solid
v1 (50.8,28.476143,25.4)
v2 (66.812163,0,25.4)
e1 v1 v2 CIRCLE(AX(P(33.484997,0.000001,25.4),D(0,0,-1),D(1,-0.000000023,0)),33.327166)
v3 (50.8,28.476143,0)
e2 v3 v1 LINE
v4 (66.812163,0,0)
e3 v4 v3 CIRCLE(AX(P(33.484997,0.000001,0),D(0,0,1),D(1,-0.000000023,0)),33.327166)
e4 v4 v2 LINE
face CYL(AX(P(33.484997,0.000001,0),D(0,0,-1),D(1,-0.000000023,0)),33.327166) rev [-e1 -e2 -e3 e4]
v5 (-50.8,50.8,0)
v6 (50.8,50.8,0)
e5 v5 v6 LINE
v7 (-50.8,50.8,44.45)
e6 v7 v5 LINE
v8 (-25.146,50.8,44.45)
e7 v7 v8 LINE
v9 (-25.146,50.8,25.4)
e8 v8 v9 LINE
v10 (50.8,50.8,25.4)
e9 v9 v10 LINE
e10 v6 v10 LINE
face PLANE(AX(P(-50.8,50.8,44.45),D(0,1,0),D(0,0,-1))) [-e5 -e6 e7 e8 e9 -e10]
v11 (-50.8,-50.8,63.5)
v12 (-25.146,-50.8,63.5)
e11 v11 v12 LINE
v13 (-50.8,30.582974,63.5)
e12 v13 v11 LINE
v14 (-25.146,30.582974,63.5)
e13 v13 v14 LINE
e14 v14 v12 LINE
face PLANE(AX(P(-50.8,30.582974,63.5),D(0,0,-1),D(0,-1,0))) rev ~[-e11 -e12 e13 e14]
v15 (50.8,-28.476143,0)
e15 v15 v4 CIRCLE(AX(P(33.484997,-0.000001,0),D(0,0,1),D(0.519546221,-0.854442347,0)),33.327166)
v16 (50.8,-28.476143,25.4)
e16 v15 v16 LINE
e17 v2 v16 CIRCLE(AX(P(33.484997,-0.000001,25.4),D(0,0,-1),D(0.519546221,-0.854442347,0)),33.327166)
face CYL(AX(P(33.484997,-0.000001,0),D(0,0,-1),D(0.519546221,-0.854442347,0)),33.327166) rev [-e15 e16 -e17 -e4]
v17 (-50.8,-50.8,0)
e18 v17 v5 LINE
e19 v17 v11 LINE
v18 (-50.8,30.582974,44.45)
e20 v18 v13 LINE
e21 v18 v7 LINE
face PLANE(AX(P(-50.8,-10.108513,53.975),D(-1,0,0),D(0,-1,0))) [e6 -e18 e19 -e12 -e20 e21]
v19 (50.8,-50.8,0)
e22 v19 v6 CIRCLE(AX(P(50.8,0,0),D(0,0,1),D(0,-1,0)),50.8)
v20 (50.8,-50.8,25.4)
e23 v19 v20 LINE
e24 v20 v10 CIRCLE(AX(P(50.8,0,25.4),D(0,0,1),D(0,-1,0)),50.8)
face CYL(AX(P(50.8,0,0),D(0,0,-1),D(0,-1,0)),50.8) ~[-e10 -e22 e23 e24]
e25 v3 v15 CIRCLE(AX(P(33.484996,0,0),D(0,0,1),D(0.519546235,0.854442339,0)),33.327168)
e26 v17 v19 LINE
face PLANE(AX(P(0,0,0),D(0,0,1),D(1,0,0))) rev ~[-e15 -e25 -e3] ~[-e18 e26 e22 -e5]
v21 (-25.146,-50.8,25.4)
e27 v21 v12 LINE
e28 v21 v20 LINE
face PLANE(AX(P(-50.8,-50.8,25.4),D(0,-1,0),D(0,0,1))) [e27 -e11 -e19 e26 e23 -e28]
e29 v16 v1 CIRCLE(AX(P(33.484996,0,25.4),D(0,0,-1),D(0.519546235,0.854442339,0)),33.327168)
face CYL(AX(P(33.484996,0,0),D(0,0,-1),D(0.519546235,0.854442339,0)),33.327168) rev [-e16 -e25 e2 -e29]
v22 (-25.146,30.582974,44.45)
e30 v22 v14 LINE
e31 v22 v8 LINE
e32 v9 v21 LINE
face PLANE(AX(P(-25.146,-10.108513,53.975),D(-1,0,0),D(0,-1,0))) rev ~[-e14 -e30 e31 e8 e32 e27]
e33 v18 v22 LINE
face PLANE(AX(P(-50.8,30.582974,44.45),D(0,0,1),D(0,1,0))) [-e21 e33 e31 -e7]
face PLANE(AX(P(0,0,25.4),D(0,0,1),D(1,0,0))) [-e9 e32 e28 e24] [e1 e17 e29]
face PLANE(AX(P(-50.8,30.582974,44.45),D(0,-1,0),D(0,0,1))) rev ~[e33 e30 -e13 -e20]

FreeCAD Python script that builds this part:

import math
import FreeCAD as App
import Part
import Sketcher
from FreeCAD import Vector
Q = App.Units.Quantity


def add_polygon(sketch, points):
    """Adds a closed chain of lines whose ends are joined by coincident constraints."""
    first, n = sketch.GeometryCount, len(points)
    for a, b in zip(points, points[1:] + points[:1]):
        sketch.addGeometry(Part.LineSegment(App.Vector(*a, 0), App.Vector(*b, 0)), False)
    for i in range(n):
        sketch.addConstraint(Sketcher.Constraint("Coincident", first + i, 2, first + (i + 1) % n, 1))

doc = App.newDocument("Part")
params = doc.addObject("Spreadsheet::Sheet", "Params")
for row, (alias, value) in enumerate([
    ("sketch1_radius", "2 in"),
    ("pad1_length", "1 in"),
    ("pocket1_length", "2.16 in"),
    ("sketch3_width", "4 in"),
    ("sketch3_height", "1.5 in"),
    ("pad2_length", "1.01 in"),
], start=1):
    params.set(f"A{row}", alias)
    params.set(f"B{row}", "=" + value)
    params.setAlias(f"B{row}", alias)

body = doc.addObject("PartDesign::Body", "Body")

# Sketch on XY plane
sketch1 = doc.addObject("Sketcher::SketchObject", "Sketch")
body.addObject(sketch1)
sketch1.AttachmentSupport = (doc.XY_Plane, [""])
sketch1.MapMode = "FlatFace"
sketch1.addGeometry([
    Part.LineSegment(Vector(-51, 51, 0), Vector(-51, -51, 0)),
    Part.LineSegment(Vector(-51, -51, 0), Vector(51, -51, 0)),
    Part.ArcOfCircle(Part.Circle(Vector(51, 0, 0), Vector(0, 0, 1), 51), math.radians(-90), math.radians(90)),
    Part.LineSegment(Vector(51, 51, 0), Vector(-51, 51, 0)),
], False)
sketch1.addConstraint([
    Sketcher.Constraint("Coincident", 0, 2, 1, 1),
    Sketcher.Constraint("Tangent", 1, 2, 2, 1),
    Sketcher.Constraint("Tangent", 2, 2, 3, 1),
    Sketcher.Constraint("Coincident", 3, 2, 0, 1),
    Sketcher.Constraint("Vertical", 0),
    Sketcher.Constraint("Horizontal", 1),
    Sketcher.Constraint("Horizontal", 3),
    Sketcher.Constraint("Symmetric", 0, 2, 2, 2, -1, 1),
    Sketcher.Constraint("Equal", 3, 0),
    Sketcher.Constraint("Radius", 2, Q("2 in")),
])
sketch1.setExpression("Constraints[9]", "Params.sketch1_radius")
pad1 = doc.addObject("PartDesign::Pad", "Pad")
body.addObject(pad1)
pad1.Profile = sketch1
pad1.setExpression("Length", "Params.pad1_length")

# Sketch on XY plane
sketch2 = doc.addObject("Sketcher::SketchObject", "Sketch001")
body.addObject(sketch2)
sketch2.AttachmentSupport = (doc.XY_Plane, [""])
sketch2.MapMode = "FlatFace"
sketch2.addGeometry([
    Part.ArcOfCircle(Part.Circle(Vector(33, 0, 0), Vector(0, 0, 1), 33), math.radians(-59), math.radians(0)),
    Part.ArcOfCircle(Part.Circle(Vector(33, 0, 0), Vector(0, 0, 1), 33), math.radians(0), math.radians(59)),
    Part.ArcOfCircle(Part.Circle(Vector(33, 0, 0), Vector(0, 0, 1), 33), math.radians(59), math.radians(301)),
], False)
sketch2.addConstraint([
    Sketcher.Constraint("Tangent", 0, 2, 1, 1),
    Sketcher.Constraint("Tangent", 1, 2, 2, 1),
    Sketcher.Constraint("Tangent", 2, 2, 0, 1),
    Sketcher.Constraint("Symmetric", 1, 2, 2, 2, -1),
    Sketcher.Constraint("PointOnObject", 0, 2, -1),
    Sketcher.Constraint("DistanceX", -1, 1, 1, 2, Q("2 in")),
    Sketcher.Constraint("DistanceX", -1, 1, 0, 2, Q("2.6304001 in")),
    Sketcher.Constraint("Radius", 0, 33.327166),
])
pocket1 = doc.addObject("PartDesign::Pocket", "Pocket")
body.addObject(pocket1)
pocket1.Profile = sketch2
pocket1.setExpression("Length", "Params.pocket1_length")
pocket1.Reversed = True

# Sketch on YZ plane
sketch3 = doc.addObject("Sketcher::SketchObject", "Sketch002")
body.addObject(sketch3)
sketch3.AttachmentSupport = (doc.YZ_Plane, [""])
sketch3.MapMode = "FlatFace"
sketch3.AttachmentOffset = App.Placement(Vector(0, 0, -2 * 25.4), App.Rotation())
add_polygon(sketch3, [(31, 64), (31, 44), (51, 44), (51, 25), (-51, 25), (-51, 64)])  # lines 0-5
sketch3.addConstraint([
    Sketcher.Constraint("Vertical", 0),
    Sketcher.Constraint("Horizontal", 1),
    Sketcher.Constraint("Vertical", 2),
    Sketcher.Constraint("Horizontal", 3),
    Sketcher.Constraint("Vertical", 4),
    Sketcher.Constraint("Horizontal", 5),
    Sketcher.Constraint("Equal", 0, 2),
    Sketcher.Constraint("DistanceX", 3, 2, 3, 1, Q("4 in")),
    Sketcher.Constraint("DistanceY", 4, 1, 4, 2, Q("1.5 in")),
    Sketcher.Constraint("DistanceX", -1, 1, 1, 2, Q("2 in")),
    Sketcher.Constraint("DistanceY", -1, 1, 2, 2, Q("1 in")),
    Sketcher.Constraint("DistanceX", 1, 1, 1, 2, 20.217026),
])
sketch3.setExpression("Constraints[13]", "Params.sketch3_width")
sketch3.setExpression("Constraints[14]", "Params.sketch3_height")
pad2 = doc.addObject("PartDesign::Pad", "Pad001")
body.addObject(pad2)
pad2.Profile = sketch3
pad2.setExpression("Length", "Params.pad2_length")

doc.recompute()
